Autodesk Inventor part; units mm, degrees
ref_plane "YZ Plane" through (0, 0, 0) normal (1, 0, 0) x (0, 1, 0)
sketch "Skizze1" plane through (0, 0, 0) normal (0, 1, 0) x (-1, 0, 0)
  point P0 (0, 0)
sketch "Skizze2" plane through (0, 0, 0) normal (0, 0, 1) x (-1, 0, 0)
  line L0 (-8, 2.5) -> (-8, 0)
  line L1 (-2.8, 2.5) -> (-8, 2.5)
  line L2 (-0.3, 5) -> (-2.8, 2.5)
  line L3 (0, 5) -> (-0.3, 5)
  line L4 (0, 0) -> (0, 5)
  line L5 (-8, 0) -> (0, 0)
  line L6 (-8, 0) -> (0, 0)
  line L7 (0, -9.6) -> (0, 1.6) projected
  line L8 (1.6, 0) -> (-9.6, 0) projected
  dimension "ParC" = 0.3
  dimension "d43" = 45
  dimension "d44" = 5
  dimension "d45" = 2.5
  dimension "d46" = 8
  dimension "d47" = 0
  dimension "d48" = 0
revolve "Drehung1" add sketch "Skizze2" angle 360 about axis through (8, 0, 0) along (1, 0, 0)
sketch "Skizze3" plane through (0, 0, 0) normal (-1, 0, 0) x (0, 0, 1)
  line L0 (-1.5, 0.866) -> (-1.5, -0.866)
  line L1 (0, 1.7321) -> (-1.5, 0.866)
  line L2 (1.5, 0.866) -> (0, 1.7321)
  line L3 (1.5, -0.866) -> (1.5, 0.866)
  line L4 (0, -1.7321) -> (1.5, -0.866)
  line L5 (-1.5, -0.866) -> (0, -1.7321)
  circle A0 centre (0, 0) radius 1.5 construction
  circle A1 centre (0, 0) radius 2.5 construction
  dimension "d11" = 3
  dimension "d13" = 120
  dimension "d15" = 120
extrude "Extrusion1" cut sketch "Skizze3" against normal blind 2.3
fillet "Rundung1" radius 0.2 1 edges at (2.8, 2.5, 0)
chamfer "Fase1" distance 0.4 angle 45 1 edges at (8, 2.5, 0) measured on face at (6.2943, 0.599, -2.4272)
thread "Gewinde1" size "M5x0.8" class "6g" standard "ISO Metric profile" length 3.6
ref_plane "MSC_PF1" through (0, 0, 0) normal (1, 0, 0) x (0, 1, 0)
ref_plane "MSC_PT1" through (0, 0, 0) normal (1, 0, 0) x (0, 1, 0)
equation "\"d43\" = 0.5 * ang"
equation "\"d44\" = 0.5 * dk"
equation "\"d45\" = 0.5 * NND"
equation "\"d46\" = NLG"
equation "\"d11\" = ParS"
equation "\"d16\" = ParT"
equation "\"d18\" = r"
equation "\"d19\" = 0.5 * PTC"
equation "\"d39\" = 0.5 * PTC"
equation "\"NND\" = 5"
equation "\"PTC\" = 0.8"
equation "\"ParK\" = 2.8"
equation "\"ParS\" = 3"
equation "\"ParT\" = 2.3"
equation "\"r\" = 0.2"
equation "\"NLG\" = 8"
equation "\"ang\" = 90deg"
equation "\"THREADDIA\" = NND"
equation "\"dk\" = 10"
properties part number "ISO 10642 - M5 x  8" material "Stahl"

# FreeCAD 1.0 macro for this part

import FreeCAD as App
import Part
import Sketcher

V = App.Vector
Q = App.Units.Quantity


def edges_at(feature, points):
    """Names of the edges that pass closest to the given points."""
    edges = feature.Shape.Edges
    near = lambda p: min(range(len(edges)), key=lambda i: edges[i].distToShape(Part.Vertex(*p))[0])
    return sorted({f"Edge{near(p) + 1}" for p in points})


def add_polygon(sketch, points):
    """Adds a closed chain of lines whose ends are joined by coincident constraints."""
    first, n = sketch.GeometryCount, len(points)
    for a, b in zip(points, points[1:] + points[:1]):
        sketch.addGeometry(Part.LineSegment(App.Vector(*a, 0), App.Vector(*b, 0)), False)
    for i in range(n):
        sketch.addConstraint(Sketcher.Constraint("Coincident", first + i, 2, first + (i + 1) % n, 1))

doc = App.newDocument("Part")
body = doc.addObject("PartDesign::Body", "Body")

# Sketch on XY plane
sketch1 = body.newObject("Sketcher::SketchObject", "Sketch")
sketch1.AttachmentSupport = (doc.getObject("XY_Plane"), [""])
sketch1.MapMode = "FlatFace"
add_polygon(sketch1, [(2.8, -2.5), (8, -2.5), (8, 0), (0, 0), (0, -5), (0.3, -5)])  # lines 0-5
sketch1.addConstraint(Sketcher.Constraint("Horizontal", 0))
sketch1.addConstraint(Sketcher.Constraint("Vertical", 1))
sketch1.addConstraint(Sketcher.Constraint("Horizontal", 2))
sketch1.addConstraint(Sketcher.Constraint("Vertical", 3))
sketch1.addConstraint(Sketcher.Constraint("Horizontal", 4))
sketch1.addConstraint(Sketcher.Constraint("Coincident", 2, 2, -1, 1))
sketch1.addConstraint(Sketcher.Constraint("DistanceX", 2, 2, 2, 1, 8.0))
sketch1.addConstraint(Sketcher.Constraint("DistanceY", 3, 2, 3, 1, 5.0))
sketch1.addConstraint(Sketcher.Constraint("Angle", 5, Q("45 deg")))
sketch1.addConstraint(Sketcher.Constraint("DistanceX", 4, 1, 4, 2, 0.3))
sketch1.addConstraint(Sketcher.Constraint("DistanceY", 1, 1, 1, 2, 2.5))
revolution = body.newObject("PartDesign::Revolution", "Revolution")
revolution.Profile = sketch1
revolution.ReferenceAxis = (sketch1, ["H_Axis"])
revolution.Angle = 360

# Sketch on YZ plane
sketch2 = body.newObject("Sketcher::SketchObject", "Sketch001")
sketch2.AttachmentSupport = (doc.getObject("YZ_Plane"), [""])
sketch2.MapMode = "FlatFace"
add_polygon(sketch2, [(1.7, 0), (0.9, -1.5), (-0.9, -1.5), (-1.7, 0), (-0.9, 1.5), (0.9, 1.5)])  # lines 0-5
sketch2.addConstraint(Sketcher.Constraint("Horizontal", 1))
sketch2.addConstraint(Sketcher.Constraint("Horizontal", 4))
sketch2.addConstraint(Sketcher.Constraint("Symmetric", 0, 2, 3, 2, -1, 1))
sketch2.addConstraint(Sketcher.Constraint("Symmetric", 2, 2, 5, 2, -1, 1))
sketch2.addConstraint(Sketcher.Constraint("PointOnObject", 2, 2, -1))
sketch2.addConstraint(Sketcher.Constraint("Parallel", 2, 5))
sketch2.addConstraint(Sketcher.Constraint("Vertical", 1, 2, 3, 2))
sketch2.addConstraint(Sketcher.Constraint("DistanceY", 1, 2, 3, 2, 3.0))
sketch2.addConstraint(Sketcher.Constraint("DistanceX", 1, 2, 1, 1, 1.732))
sketch2.addConstraint(Sketcher.Constraint("Distance", 0, 1.732))
pocket1 = body.newObject("PartDesign::Pocket", "Pocket")
pocket1.Profile = sketch2
pocket1.Length = 2.3
pocket1.Reversed = True
doc.recompute()

fillet = body.newObject("PartDesign::Fillet", "Fillet")
fillet.Base = (pocket1, edges_at(pocket1, [(2.8, 2.5, 0)]))
fillet.Radius = 0.2
doc.recompute()

chamfer = body.newObject("PartDesign::Chamfer", "Chamfer")
chamfer.Base = (fillet, edges_at(fillet, [(8, 2.5, 0)]))
chamfer.Size = 0.4

doc.recompute()
